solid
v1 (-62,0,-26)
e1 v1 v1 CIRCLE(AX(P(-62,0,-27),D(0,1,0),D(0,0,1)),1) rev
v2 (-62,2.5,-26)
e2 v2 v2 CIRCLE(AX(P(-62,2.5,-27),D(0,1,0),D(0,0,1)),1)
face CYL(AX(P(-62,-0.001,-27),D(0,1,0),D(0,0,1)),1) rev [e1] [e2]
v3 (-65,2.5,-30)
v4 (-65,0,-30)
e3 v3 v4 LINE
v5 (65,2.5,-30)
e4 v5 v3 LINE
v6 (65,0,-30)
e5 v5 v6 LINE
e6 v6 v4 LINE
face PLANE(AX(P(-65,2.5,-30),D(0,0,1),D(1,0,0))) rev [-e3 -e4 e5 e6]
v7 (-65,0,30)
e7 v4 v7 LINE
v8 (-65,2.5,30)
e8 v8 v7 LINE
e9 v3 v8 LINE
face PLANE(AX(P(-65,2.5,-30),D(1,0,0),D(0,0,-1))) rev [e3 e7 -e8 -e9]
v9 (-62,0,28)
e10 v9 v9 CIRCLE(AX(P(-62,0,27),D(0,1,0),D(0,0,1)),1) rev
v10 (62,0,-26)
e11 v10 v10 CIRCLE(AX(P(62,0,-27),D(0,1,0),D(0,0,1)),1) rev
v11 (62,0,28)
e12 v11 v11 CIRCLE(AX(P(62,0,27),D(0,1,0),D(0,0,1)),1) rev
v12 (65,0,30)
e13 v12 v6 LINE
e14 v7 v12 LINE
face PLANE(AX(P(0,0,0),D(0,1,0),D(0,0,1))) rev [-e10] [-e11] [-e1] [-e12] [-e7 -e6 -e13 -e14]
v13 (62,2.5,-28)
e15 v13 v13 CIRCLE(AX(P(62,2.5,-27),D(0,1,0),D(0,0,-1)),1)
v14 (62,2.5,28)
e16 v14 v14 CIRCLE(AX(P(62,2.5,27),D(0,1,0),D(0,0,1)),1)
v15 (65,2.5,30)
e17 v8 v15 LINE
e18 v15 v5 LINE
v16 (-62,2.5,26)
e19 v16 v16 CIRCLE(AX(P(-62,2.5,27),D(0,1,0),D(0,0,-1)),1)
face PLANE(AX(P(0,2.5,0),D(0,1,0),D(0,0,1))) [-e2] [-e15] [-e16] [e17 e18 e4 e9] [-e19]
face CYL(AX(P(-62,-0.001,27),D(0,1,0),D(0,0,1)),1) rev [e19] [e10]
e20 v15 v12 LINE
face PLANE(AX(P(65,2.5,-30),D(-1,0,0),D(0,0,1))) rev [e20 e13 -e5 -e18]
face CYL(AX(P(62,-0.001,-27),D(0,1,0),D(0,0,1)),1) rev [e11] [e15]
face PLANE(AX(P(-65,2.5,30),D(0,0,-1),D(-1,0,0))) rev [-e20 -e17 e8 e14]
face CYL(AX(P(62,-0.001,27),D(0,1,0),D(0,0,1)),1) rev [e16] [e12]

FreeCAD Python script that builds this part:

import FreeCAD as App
import Part
import Sketcher

doc = App.newDocument("Part")
body = doc.addObject("PartDesign::Body", "Body")

# Sketch on XZ plane
sketch1 = body.newObject("Sketcher::SketchObject", "Sketch")
sketch1.AttachmentSupport = (doc.getObject("XZ_Plane"), [""])
sketch1.MapMode = "FlatFace"
sketch1.addGeometry([
    Part.LineSegment(App.Vector(-65, -30, 0), App.Vector(-65, 30, 0)),
    Part.LineSegment(App.Vector(-65, 30, 0), App.Vector(65, 30, 0)),
    Part.LineSegment(App.Vector(65, 30, 0), App.Vector(65, -30, 0)),
    Part.LineSegment(App.Vector(65, -30, 0), App.Vector(-65, -30, 0)),
], False)
sketch1.addConstraint([
    Sketcher.Constraint("Coincident", 0, 2, 1, 1),
    Sketcher.Constraint("Coincident", 1, 2, 2, 1),
    Sketcher.Constraint("Coincident", 2, 2, 3, 1),
    Sketcher.Constraint("Coincident", 3, 2, 0, 1),
    Sketcher.Constraint("Vertical", 0),
    Sketcher.Constraint("Horizontal", 1),
    Sketcher.Constraint("Vertical", 2),
    Sketcher.Constraint("Horizontal", 3),
    Sketcher.Constraint("Symmetric", 0, 2, 2, 2, -1, 1),
    Sketcher.Constraint("DistanceX", 1, 1, 1, 2, 130.0),
    Sketcher.Constraint("DistanceY", 0, 1, 0, 2, 60.0),
])
pad1 = body.newObject("PartDesign::Pad", "Pad")
pad1.Profile = sketch1
pad1.Length = 2.5
pad1.Reversed = True

# Sketch on XZ plane
sketch2 = body.newObject("Sketcher::SketchObject", "Sketch001")
sketch2.AttachmentSupport = (doc.getObject("XZ_Plane"), [""])
sketch2.MapMode = "FlatFace"
sketch2.AttachmentOffset = App.Placement(App.Vector(0, 0, -2.5), App.Rotation())
sketch2.addGeometry(Part.Circle(App.Vector(-62, -27, 0), App.Vector(0, 0, 1), 1), False)
sketch2.addConstraint([
    Sketcher.Constraint("Diameter", 0, 2.0),
    Sketcher.Constraint("DistanceX", 0, 3, -1, 1, 62.0),
    Sketcher.Constraint("DistanceY", 0, 3, -1, 1, 27.0),
])
pocket1 = body.newObject("PartDesign::Pocket", "Pocket")
pocket1.Profile = sketch2
pocket1.Type = "UpToFirst"
pocket1.Reversed = True

# Sketch on XZ plane
sketch3 = body.newObject("Sketcher::SketchObject", "Sketch002")
sketch3.AttachmentSupport = (doc.getObject("XZ_Plane"), [""])
sketch3.MapMode = "FlatFace"
sketch3.AttachmentOffset = App.Placement(App.Vector(0, 0, -2.5), App.Rotation())
sketch3.addGeometry(Part.Circle(App.Vector(62, -27, 0), App.Vector(0, 0, 1), 1), False)
sketch3.addConstraint([
    Sketcher.Constraint("Diameter", 0, 2.0),
    Sketcher.Constraint("DistanceX", -1, 1, 0, 3, 62.0),
    Sketcher.Constraint("DistanceY", 0, 3, -1, 1, 27.0),
])
pocket2 = body.newObject("PartDesign::Pocket", "Pocket001")
pocket2.Profile = sketch3
pocket2.Type = "UpToFirst"
pocket2.Reversed = True

# Sketch on XZ plane
sketch4 = body.newObject("Sketcher::SketchObject", "Sketch003")
sketch4.AttachmentSupport = (doc.getObject("XZ_Plane"), [""])
sketch4.MapMode = "FlatFace"
sketch4.AttachmentOffset = App.Placement(App.Vector(0, 0, -2.5), App.Rotation())
sketch4.addGeometry(Part.Circle(App.Vector(62, 27, 0), App.Vector(0, 0, 1), 1), False)
sketch4.addConstraint([
    Sketcher.Constraint("Diameter", 0, 2.0),
    Sketcher.Constraint("DistanceX", -1, 1, 0, 3, 62.0),
    Sketcher.Constraint("DistanceY", -1, 1, 0, 3, 27.0),
])
pocket3 = body.newObject("PartDesign::Pocket", "Pocket002")
pocket3.Profile = sketch4
pocket3.Type = "UpToFirst"
pocket3.Reversed = True

# Sketch on XZ plane
sketch5 = body.newObject("Sketcher::SketchObject", "Sketch004")
sketch5.AttachmentSupport = (doc.getObject("XZ_Plane"), [""])
sketch5.MapMode = "FlatFace"
sketch5.AttachmentOffset = App.Placement(App.Vector(0, 0, -2.5), App.Rotation())
sketch5.addGeometry(Part.Circle(App.Vector(-62, 27, 0), App.Vector(0, 0, 1), 1), False)
sketch5.addConstraint([
    Sketcher.Constraint("Diameter", 0, 2.0),
    Sketcher.Constraint("DistanceX", 0, 3, -1, 1, 62.0),
    Sketcher.Constraint("DistanceY", -1, 1, 0, 3, 27.0),
])
pocket4 = body.newObject("PartDesign::Pocket", "Pocket003")
pocket4.Profile = sketch5
pocket4.Type = "UpToFirst"
pocket4.Reversed = True

doc.recompute()
